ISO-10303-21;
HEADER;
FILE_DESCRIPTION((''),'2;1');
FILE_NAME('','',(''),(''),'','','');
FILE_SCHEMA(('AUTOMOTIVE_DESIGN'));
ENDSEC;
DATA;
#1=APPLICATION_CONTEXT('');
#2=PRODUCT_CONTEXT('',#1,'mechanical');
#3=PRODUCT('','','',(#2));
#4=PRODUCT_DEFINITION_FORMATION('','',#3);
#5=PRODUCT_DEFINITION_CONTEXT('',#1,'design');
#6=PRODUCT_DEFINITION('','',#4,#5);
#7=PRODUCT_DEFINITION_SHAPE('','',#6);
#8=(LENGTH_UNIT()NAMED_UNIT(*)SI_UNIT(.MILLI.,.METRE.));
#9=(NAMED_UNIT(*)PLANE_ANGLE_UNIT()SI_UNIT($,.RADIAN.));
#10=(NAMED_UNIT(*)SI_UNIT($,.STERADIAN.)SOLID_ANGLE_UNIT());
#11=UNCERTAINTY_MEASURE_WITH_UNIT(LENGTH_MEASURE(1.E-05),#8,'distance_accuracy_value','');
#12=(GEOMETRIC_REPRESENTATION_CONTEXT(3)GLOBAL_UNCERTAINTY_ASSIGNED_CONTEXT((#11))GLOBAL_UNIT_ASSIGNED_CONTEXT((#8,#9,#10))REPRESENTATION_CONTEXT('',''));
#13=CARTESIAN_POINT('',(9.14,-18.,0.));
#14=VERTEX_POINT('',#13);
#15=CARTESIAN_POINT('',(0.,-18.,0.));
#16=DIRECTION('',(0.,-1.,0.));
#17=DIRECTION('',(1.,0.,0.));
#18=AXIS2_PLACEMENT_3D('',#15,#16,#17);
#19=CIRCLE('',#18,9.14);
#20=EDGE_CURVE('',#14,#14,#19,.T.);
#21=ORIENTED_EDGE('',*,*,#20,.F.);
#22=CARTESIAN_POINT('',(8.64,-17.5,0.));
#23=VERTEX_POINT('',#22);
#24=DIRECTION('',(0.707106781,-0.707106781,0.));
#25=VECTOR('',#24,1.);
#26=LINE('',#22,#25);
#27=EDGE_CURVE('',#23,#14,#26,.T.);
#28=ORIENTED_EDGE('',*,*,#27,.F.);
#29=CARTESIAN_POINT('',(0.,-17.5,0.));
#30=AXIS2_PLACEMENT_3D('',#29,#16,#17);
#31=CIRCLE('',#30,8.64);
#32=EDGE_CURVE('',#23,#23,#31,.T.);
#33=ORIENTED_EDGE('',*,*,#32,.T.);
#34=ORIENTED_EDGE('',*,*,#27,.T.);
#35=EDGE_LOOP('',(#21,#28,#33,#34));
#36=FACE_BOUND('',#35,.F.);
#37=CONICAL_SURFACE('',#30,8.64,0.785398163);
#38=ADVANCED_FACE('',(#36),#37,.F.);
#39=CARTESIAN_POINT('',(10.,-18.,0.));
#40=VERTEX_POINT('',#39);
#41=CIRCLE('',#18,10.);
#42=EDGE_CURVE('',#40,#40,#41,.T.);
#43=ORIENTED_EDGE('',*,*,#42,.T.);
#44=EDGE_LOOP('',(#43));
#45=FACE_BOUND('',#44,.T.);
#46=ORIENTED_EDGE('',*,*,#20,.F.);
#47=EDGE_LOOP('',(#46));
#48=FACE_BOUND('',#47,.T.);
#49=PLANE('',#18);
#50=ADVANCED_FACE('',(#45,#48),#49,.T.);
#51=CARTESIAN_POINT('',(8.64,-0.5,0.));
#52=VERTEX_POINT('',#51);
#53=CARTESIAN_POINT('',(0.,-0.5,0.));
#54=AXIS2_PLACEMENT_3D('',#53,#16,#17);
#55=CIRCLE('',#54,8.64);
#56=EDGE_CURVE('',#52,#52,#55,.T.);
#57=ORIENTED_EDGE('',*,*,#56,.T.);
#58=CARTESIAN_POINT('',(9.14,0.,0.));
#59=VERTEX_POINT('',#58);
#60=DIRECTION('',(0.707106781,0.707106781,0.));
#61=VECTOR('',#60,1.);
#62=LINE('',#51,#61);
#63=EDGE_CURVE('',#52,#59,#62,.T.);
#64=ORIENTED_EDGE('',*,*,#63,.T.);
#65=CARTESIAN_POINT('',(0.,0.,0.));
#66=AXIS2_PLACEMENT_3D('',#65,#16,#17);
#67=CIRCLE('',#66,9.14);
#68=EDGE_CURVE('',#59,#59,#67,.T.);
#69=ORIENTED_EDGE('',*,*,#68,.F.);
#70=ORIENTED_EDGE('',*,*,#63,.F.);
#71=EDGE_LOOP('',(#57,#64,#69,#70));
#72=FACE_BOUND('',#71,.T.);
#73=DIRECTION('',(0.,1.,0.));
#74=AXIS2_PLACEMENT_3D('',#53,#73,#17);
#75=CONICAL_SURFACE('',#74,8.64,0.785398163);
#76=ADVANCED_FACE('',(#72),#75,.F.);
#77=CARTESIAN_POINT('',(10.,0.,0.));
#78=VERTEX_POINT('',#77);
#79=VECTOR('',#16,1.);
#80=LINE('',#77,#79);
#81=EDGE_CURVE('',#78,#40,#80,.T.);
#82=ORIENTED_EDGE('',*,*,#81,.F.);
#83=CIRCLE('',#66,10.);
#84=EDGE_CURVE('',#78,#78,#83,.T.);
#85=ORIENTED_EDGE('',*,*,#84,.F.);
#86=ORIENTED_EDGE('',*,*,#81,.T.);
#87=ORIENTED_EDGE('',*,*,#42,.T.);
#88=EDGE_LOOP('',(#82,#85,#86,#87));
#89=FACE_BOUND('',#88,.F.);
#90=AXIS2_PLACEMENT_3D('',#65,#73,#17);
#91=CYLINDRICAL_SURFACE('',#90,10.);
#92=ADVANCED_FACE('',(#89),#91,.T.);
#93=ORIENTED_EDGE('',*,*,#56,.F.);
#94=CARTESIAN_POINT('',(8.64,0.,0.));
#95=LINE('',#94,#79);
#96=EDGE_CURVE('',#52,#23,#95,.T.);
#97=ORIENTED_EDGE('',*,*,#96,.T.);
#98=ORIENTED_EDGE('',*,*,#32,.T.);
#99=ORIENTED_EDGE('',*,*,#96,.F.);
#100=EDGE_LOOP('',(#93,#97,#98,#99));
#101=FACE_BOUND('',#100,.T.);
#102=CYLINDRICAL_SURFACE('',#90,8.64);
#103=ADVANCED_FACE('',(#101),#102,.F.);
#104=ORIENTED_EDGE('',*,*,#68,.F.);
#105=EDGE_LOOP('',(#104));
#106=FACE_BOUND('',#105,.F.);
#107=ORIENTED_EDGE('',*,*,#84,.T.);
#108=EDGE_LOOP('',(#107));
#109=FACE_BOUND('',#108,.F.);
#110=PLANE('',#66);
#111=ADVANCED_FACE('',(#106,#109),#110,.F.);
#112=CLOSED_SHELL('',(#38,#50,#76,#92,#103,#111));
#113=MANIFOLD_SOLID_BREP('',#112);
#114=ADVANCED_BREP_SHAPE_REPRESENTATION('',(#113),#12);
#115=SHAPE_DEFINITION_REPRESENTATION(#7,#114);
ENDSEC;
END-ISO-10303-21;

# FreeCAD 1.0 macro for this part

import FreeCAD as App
import Part
import Sketcher

V = App.Vector
Q = App.Units.Quantity


def edges_at(feature, points):
    """Names of the edges that pass closest to the given points."""
    edges = feature.Shape.Edges
    near = lambda p: min(range(len(edges)), key=lambda i: edges[i].distToShape(Part.Vertex(*p))[0])
    return sorted({f"Edge{near(p) + 1}" for p in points})

doc = App.newDocument("Part")
params = doc.addObject("Spreadsheet::Sheet", "Params")
for row, (alias, value) in enumerate([
    ("sketch1_diameter", "20 mm"),
    ("sketch1_diameter2", "17.28 mm"),
    ("pad1_length", "18 mm"),
    ("chamfer_size", "0.5 mm"),
], start=1):
    params.set(f"A{row}", alias)
    params.set(f"B{row}", "=" + value)
    params.setAlias(f"B{row}", alias)

body = doc.addObject("PartDesign::Body", "Body")

# Sketch on XZ plane
sketch1 = body.newObject("Sketcher::SketchObject", "Sketch")
sketch1.AttachmentSupport = (doc.getObject("XZ_Plane"), [""])
sketch1.MapMode = "FlatFace"
sketch1.addGeometry([
    Part.Circle(V(0, 0, 0), V(0, 0, 1), 10),
    Part.Circle(V(0, 0, 0), V(0, 0, 1), 9),
], False)
sketch1.addConstraint([
    Sketcher.Constraint("Coincident", 0, 3, -1, 1),
    Sketcher.Constraint("Coincident", 1, 3, -1, 1),
    Sketcher.Constraint("Diameter", 0, Q("20 mm")),
    Sketcher.Constraint("Diameter", 1, Q("17.28 mm")),
])
sketch1.setExpression("Constraints[2]", "Params.sketch1_diameter")
sketch1.setExpression("Constraints[3]", "Params.sketch1_diameter2")
pad1 = body.newObject("PartDesign::Pad", "Pad")
pad1.Profile = sketch1
pad1.setExpression("Length", "Params.pad1_length")
doc.recompute()

chamfer = body.newObject("PartDesign::Chamfer", "Chamfer")
chamfer.Base = (pad1, edges_at(pad1, [(-8.64, -18, 0), (-8.64, 0, 0)]))
chamfer.setExpression("Size", "Params.chamfer_size")

doc.recompute()
